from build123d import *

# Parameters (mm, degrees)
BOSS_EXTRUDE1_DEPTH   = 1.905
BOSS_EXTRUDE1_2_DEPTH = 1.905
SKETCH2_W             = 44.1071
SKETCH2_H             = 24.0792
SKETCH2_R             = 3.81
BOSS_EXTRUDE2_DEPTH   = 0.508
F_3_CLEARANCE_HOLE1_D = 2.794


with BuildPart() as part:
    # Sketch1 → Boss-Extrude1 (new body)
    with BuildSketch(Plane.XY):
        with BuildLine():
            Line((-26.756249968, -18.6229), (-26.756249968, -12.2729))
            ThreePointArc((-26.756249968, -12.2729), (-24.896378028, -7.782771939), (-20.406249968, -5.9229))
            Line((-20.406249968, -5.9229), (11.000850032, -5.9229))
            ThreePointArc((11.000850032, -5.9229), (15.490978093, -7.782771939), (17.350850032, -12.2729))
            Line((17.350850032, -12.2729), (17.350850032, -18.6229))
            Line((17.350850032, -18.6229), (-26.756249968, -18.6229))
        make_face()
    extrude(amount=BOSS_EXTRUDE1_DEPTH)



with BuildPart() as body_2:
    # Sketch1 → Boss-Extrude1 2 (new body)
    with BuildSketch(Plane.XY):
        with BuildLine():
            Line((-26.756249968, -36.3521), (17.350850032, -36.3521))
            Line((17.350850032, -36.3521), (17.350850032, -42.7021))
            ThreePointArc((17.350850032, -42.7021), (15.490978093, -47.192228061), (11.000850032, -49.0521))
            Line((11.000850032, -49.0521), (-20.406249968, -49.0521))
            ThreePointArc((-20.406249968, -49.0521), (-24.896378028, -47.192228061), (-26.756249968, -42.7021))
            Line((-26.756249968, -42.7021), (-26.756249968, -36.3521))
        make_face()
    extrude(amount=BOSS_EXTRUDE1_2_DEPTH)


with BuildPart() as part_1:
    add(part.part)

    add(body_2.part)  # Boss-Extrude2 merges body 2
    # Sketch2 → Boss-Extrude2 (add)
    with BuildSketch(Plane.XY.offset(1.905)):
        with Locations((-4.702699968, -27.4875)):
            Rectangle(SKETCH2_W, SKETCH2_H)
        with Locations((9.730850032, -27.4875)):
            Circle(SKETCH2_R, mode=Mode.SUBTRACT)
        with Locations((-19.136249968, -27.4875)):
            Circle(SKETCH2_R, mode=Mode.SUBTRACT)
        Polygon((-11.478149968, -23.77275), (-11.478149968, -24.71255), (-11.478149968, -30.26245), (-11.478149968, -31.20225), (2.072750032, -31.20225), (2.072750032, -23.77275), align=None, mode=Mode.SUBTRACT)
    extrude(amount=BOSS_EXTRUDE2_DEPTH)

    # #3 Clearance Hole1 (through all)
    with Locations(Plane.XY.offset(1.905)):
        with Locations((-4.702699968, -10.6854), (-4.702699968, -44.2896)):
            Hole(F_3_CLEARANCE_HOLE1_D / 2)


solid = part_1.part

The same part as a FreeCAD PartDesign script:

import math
import FreeCAD as App
import Part
import Sketcher
from FreeCAD import Vector
Q = App.Units.Quantity

doc = App.newDocument("Part")
body = doc.addObject("PartDesign::Body", "Body")

sketch1 = body.newObject("Sketcher::SketchObject", "Sketch")
sketch1.AttachmentSupport = (doc.getObject("XY_Plane"), [""])
sketch1.MapMode = "FlatFace"
sketch1.addGeometry([
    Part.LineSegment(Vector(-26.75625, -12.2729, 0), Vector(-26.75625, -18.6229, 0)),
    Part.LineSegment(Vector(-26.75625, -18.6229, 0), Vector(17.35085, -18.6229, 0)),
    Part.LineSegment(Vector(17.35085, -18.6229, 0), Vector(17.35085, -12.2729, 0)),
    Part.ArcOfCircle(Part.Circle(Vector(11.00085, -12.2729, 0), Vector(0, 0, 1), 6.35), math.radians(0), math.radians(90)),
    Part.LineSegment(Vector(11.00085, -5.9229, 0), Vector(-20.40625, -5.9229, 0)),
    Part.ArcOfCircle(Part.Circle(Vector(-20.40625, -12.2729, 0), Vector(0, 0, 1), 6.35), math.radians(90), math.radians(180)),
], False)
sketch1.addConstraint([
    Sketcher.Constraint("Coincident", 0, 2, 1, 1),
    Sketcher.Constraint("Coincident", 1, 2, 2, 1),
    Sketcher.Constraint("Tangent", 2, 2, 3, 1),
    Sketcher.Constraint("Tangent", 3, 2, 4, 1),
    Sketcher.Constraint("Tangent", 4, 2, 5, 1),
    Sketcher.Constraint("Tangent", 5, 2, 0, 1),
    Sketcher.Constraint("Vertical", 0),
    Sketcher.Constraint("Horizontal", 1),
    Sketcher.Constraint("Vertical", 2),
    Sketcher.Constraint("Horizontal", 4),
    Sketcher.Constraint("Equal", 3, 5),
    Sketcher.Constraint("Radius", 3, Q("0.25 in")),
    Sketcher.Constraint("DistanceY", 0, 2, 0, 1, Q("0.25 in")),
    Sketcher.Constraint("DistanceX", 1, 1, 1, 2, Q("1.7365 in")),
    Sketcher.Constraint("DistanceY", 3, 3, -1, 1, Q("12.2729 mm")),
    Sketcher.Constraint("DistanceX", -1, 1, 3, 3, Q("11.00085 mm")),
])
pad1 = body.newObject("PartDesign::Pad", "Pad")
pad1.Profile = sketch1
pad1.Length = Q("0.075 in")
body2 = doc.addObject("PartDesign::Body", "Body001")

sketch2 = body2.newObject("Sketcher::SketchObject", "Sketch001")
sketch2.AttachmentSupport = (doc.getObject("XY_Plane001"), [""])
sketch2.MapMode = "FlatFace"
sketch2.addGeometry([
    Part.LineSegment(Vector(17.35085, -36.3521, 0), Vector(-26.75625, -36.3521, 0)),
    Part.LineSegment(Vector(-26.75625, -36.3521, 0), Vector(-26.75625, -42.7021, 0)),
    Part.ArcOfCircle(Part.Circle(Vector(-20.40625, -42.7021, 0), Vector(0, 0, 1), 6.35), math.radians(180), math.radians(270)),
    Part.LineSegment(Vector(-20.40625, -49.0521, 0), Vector(11.00085, -49.0521, 0)),
    Part.ArcOfCircle(Part.Circle(Vector(11.00085, -42.7021, 0), Vector(0, 0, 1), 6.35), math.radians(-90), math.radians(0)),
    Part.LineSegment(Vector(17.35085, -42.7021, 0), Vector(17.35085, -36.3521, 0)),
], False)
sketch2.addConstraint([
    Sketcher.Constraint("Coincident", 0, 2, 1, 1),
    Sketcher.Constraint("Tangent", 1, 2, 2, 1),
    Sketcher.Constraint("Tangent", 2, 2, 3, 1),
    Sketcher.Constraint("Tangent", 3, 2, 4, 1),
    Sketcher.Constraint("Tangent", 4, 2, 5, 1),
    Sketcher.Constraint("Coincident", 5, 2, 0, 1),
    Sketcher.Constraint("Horizontal", 0),
    Sketcher.Constraint("Vertical", 1),
    Sketcher.Constraint("Horizontal", 3),
    Sketcher.Constraint("Vertical", 5),
    Sketcher.Constraint("Equal", 2, 4),
    Sketcher.Constraint("Radius", 2, Q("0.25 in")),
    Sketcher.Constraint("DistanceY", 1, 2, 1, 1, Q("0.25 in")),
    Sketcher.Constraint("DistanceX", 0, 2, 0, 1, Q("1.7365 in")),
    Sketcher.Constraint("DistanceY", 2, 3, -1, 1, Q("42.7021 mm")),
    Sketcher.Constraint("DistanceX", 2, 3, -1, 1, Q("20.40625 mm")),
])
pad2 = body2.newObject("PartDesign::Pad", "Pad001")
pad2.Profile = sketch2
pad2.Length = Q("0.075 in")
body.AllowCompound = True
doc.recompute()

boolean = body.newObject("PartDesign::Boolean", "Boolean")
boolean.Type = "Fuse"
boolean.addObjects([body2])

sketch3 = body.newObject("Sketcher::SketchObject", "Sketch002")
sketch3.AttachmentSupport = (doc.getObject("XY_Plane"), [""])
sketch3.MapMode = "FlatFace"
sketch3.AttachmentOffset = App.Placement(Vector(0, 0, 0.075 * 25.4), App.Rotation())
sketch3.addGeometry([
    Part.LineSegment(Vector(-26.75625, -15.4479, 0), Vector(-26.75625, -39.5271, 0)),
    Part.LineSegment(Vector(-26.75625, -39.5271, 0), Vector(17.35085, -39.5271, 0)),
    Part.LineSegment(Vector(17.35085, -39.5271, 0), Vector(17.35085, -15.4479, 0)),
    Part.LineSegment(Vector(17.35085, -15.4479, 0), Vector(-26.75625, -15.4479, 0)),
    Part.Circle(Vector(-19.13625, -27.4875, 0), Vector(0, 0, 1), 3.81),
    Part.Circle(Vector(9.73085, -27.4875, 0), Vector(0, 0, 1), 3.81),
    Part.LineSegment(Vector(-11.47815, -31.20225, 0), Vector(-11.47815, -23.77275, 0)),
    Part.LineSegment(Vector(-11.47815, -23.77275, 0), Vector(2.07275, -23.77275, 0)),
    Part.LineSegment(Vector(2.07275, -23.77275, 0), Vector(2.07275, -31.20225, 0)),
    Part.LineSegment(Vector(2.07275, -31.20225, 0), Vector(-11.47815, -31.20225, 0)),
], False)
sketch3.addConstraint([
    Sketcher.Constraint("Coincident", 0, 2, 1, 1),
    Sketcher.Constraint("Coincident", 1, 2, 2, 1),
    Sketcher.Constraint("Coincident", 2, 2, 3, 1),
    Sketcher.Constraint("Coincident", 3, 2, 0, 1),
    Sketcher.Constraint("Coincident", 6, 2, 7, 1),
    Sketcher.Constraint("Coincident", 7, 2, 8, 1),
    Sketcher.Constraint("Coincident", 8, 2, 9, 1),
    Sketcher.Constraint("Coincident", 9, 2, 6, 1),
    Sketcher.Constraint("Vertical", 0),
    Sketcher.Constraint("Horizontal", 1),
    Sketcher.Constraint("Vertical", 2),
    Sketcher.Constraint("Horizontal", 3),
    Sketcher.Constraint("Vertical", 6),
    Sketcher.Constraint("Horizontal", 7),
    Sketcher.Constraint("Vertical", 8),
    Sketcher.Constraint("Horizontal", 9),
    Sketcher.Constraint("Equal", 4, 5),
    Sketcher.Constraint("Horizontal", 4, 3, 5, 3),
    Sketcher.Constraint("Diameter", 4, Q("0.3 in")),
    Sketcher.Constraint("DistanceX", 0, 2, 4, 3, Q("0.3 in")),
    Sketcher.Constraint("DistanceX", 5, 3, 1, 2, Q("0.3 in")),
    Sketcher.Constraint("DistanceY", 0, 2, 0, 1, Q("0.948 in")),
    Sketcher.Constraint("DistanceX", 1, 1, 1, 2, Q("1.7365 in")),
    Sketcher.Constraint("DistanceX", 7, 1, 7, 2, Q("0.5335 in")),
    Sketcher.Constraint("DistanceY", 6, 1, 6, 2, Q("0.2925 in")),
    Sketcher.Constraint("DistanceY", 0, 2, 4, 3, Q("0.474 in")),
    Sketcher.Constraint("DistanceX", 6, 2, 5, 3, Q("0.835 in")),
    Sketcher.Constraint("DistanceY", 4, 3, -1, 1, Q("27.4875 mm")),
    Sketcher.Constraint("DistanceX", 4, 3, -1, 1, Q("19.13625 mm")),
    Sketcher.Constraint("DistanceY", 6, 2, -1, 1, Q("23.77275 mm")),
])
pad3 = body.newObject("PartDesign::Pad", "Pad002")
pad3.Profile = sketch3
pad3.Length = Q("0.02 in")

sketch4 = body.newObject("Sketcher::SketchObject", "Sketch003")
sketch4.AttachmentSupport = (doc.getObject("XY_Plane"), [""])
sketch4.MapMode = "FlatFace"
sketch4.AttachmentOffset = App.Placement(Vector(0, 0, 0.075 * 25.4), App.Rotation())
sketch4.addGeometry([
    Part.Circle(Vector(-4.7027, -10.6854, 0), Vector(0, 0, 1), 1.397),
    Part.Circle(Vector(-4.7027, -44.2896, 0), Vector(0, 0, 1), 1.397),
], False)
sketch4.addConstraint([
    Sketcher.Constraint("Equal", 0, 1),
    Sketcher.Constraint("Vertical", 0, 3, 1, 3),
    Sketcher.Constraint("Diameter", 0, Q("0.11 in")),
    Sketcher.Constraint("DistanceY", 1, 3, 0, 3, Q("1.323 in")),
    Sketcher.Constraint("DistanceX", 0, 3, -1, 1, Q("4.7027 mm")),
    Sketcher.Constraint("DistanceY", 0, 3, -1, 1, Q("10.6854 mm")),
])
doc.recompute()
hole = body.newObject("PartDesign::Hole", "Hole")
hole.Profile = sketch4
hole.ThreadType = "None"
hole.Diameter = Q("0.11 in")
hole.DepthType = "ThroughAll"

doc.recompute()
